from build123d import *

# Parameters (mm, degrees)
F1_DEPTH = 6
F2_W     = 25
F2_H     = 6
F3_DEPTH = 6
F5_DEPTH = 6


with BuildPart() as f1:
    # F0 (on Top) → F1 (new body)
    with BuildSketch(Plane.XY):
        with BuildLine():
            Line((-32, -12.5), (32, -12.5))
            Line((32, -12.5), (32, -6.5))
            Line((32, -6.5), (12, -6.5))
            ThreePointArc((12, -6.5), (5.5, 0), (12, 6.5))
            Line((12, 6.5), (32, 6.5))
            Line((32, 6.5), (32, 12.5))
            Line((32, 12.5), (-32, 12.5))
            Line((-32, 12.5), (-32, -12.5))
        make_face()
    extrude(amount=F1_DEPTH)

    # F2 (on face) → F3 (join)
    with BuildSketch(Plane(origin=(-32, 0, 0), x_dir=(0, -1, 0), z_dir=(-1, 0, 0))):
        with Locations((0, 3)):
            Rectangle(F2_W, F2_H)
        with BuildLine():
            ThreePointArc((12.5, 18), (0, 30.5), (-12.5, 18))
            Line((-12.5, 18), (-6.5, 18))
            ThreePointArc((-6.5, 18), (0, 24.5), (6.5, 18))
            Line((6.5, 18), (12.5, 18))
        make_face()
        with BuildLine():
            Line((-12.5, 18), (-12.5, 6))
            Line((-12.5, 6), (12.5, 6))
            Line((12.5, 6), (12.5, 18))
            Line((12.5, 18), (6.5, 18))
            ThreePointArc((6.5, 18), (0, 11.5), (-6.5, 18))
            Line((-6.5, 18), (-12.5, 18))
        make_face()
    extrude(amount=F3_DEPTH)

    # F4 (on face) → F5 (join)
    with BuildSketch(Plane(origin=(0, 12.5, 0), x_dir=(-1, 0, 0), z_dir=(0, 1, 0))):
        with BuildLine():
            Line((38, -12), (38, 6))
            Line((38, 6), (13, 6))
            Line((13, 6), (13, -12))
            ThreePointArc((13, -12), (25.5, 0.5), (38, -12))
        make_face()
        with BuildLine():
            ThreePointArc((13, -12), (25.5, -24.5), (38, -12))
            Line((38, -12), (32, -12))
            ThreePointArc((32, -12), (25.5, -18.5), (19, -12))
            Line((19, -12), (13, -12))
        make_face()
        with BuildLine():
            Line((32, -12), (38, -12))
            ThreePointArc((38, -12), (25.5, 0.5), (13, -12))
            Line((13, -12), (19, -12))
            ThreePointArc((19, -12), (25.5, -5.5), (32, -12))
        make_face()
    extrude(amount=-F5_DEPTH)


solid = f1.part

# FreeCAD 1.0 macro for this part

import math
import FreeCAD as App
import Part
import Sketcher
from FreeCAD import Vector

doc = App.newDocument("Part")
body = doc.addObject("PartDesign::Body", "Body")

# Sketch on XY plane
sketch1 = body.newObject("Sketcher::SketchObject", "Sketch")
sketch1.AttachmentSupport = (doc.getObject("XY_Plane"), [""])
sketch1.MapMode = "FlatFace"
sketch1.addGeometry(Part.LineSegment(Vector(-32, -12, 0), Vector(32, -12, 0)), False)
sketch1.addGeometry(Part.LineSegment(Vector(32, -12, 0), Vector(32, -6, 0)), False)
sketch1.addGeometry(Part.LineSegment(Vector(32, -6, 0), Vector(12, -6, 0)), False)
sketch1.addGeometry(Part.ArcOfCircle(Part.Circle(Vector(12, 0, 0), Vector(0, 0, 1), 6), math.radians(90), math.radians(270)), False)
sketch1.addGeometry(Part.LineSegment(Vector(12, 6, 0), Vector(32, 6, 0)), False)
sketch1.addGeometry(Part.LineSegment(Vector(32, 6, 0), Vector(32, 12, 0)), False)
sketch1.addGeometry(Part.LineSegment(Vector(32, 12, 0), Vector(-32, 12, 0)), False)
sketch1.addGeometry(Part.LineSegment(Vector(-32, 12, 0), Vector(-32, -12, 0)), False)
sketch1.addConstraint(Sketcher.Constraint("Coincident", 0, 2, 1, 1))
sketch1.addConstraint(Sketcher.Constraint("Coincident", 1, 2, 2, 1))
sketch1.addConstraint(Sketcher.Constraint("Tangent", 2, 2, 3, 2))
sketch1.addConstraint(Sketcher.Constraint("Tangent", 3, 1, 4, 1))
sketch1.addConstraint(Sketcher.Constraint("Coincident", 4, 2, 5, 1))
sketch1.addConstraint(Sketcher.Constraint("Coincident", 5, 2, 6, 1))
sketch1.addConstraint(Sketcher.Constraint("Coincident", 6, 2, 7, 1))
sketch1.addConstraint(Sketcher.Constraint("Coincident", 7, 2, 0, 1))
sketch1.addConstraint(Sketcher.Constraint("Horizontal", 0))
sketch1.addConstraint(Sketcher.Constraint("Vertical", 1))
sketch1.addConstraint(Sketcher.Constraint("Horizontal", 2))
sketch1.addConstraint(Sketcher.Constraint("Horizontal", 4))
sketch1.addConstraint(Sketcher.Constraint("Vertical", 5))
sketch1.addConstraint(Sketcher.Constraint("Horizontal", 6))
sketch1.addConstraint(Sketcher.Constraint("Vertical", 7))
sketch1.addConstraint(Sketcher.Constraint("Symmetric", 0, 2, 6, 2, -1, 1))
sketch1.addConstraint(Sketcher.Constraint("Symmetric", 1, 2, 4, 2, -1))
sketch1.addConstraint(Sketcher.Constraint("Radius", 3, 6.5))
sketch1.addConstraint(Sketcher.Constraint("DistanceX", 0, 1, 0, 2, 64.0))
sketch1.addConstraint(Sketcher.Constraint("DistanceX", 2, 2, 2, 1, 20.0))
sketch1.addConstraint(Sketcher.Constraint("DistanceY", 1, 1, 1, 2, 6.0))
pad1 = body.newObject("PartDesign::Pad", "Pad")
pad1.Profile = sketch1
pad1.Length = 6

# Sketch on YZ plane
sketch2 = body.newObject("Sketcher::SketchObject", "Sketch001")
sketch2.AttachmentSupport = (doc.getObject("YZ_Plane"), [""])
sketch2.MapMode = "FlatFace"
sketch2.AttachmentOffset = App.Placement(Vector(0, 0, -32), App.Rotation())
sketch2.addGeometry(Part.LineSegment(Vector(12, 0, 0), Vector(-12, 0, 0)), False)
sketch2.addGeometry(Part.LineSegment(Vector(-12, 0, 0), Vector(-12, 18, 0)), False)
sketch2.addGeometry(Part.ArcOfCircle(Part.Circle(Vector(0, 18, 0), Vector(0, 0, 1), 12), math.radians(0), math.radians(180)), False)
sketch2.addGeometry(Part.LineSegment(Vector(12, 18, 0), Vector(12, 0, 0)), False)
sketch2.addGeometry(Part.Circle(Vector(0, 18, 0), Vector(0, 0, 1), 6), False)
sketch2.addConstraint(Sketcher.Constraint("Coincident", 0, 2, 1, 1))
sketch2.addConstraint(Sketcher.Constraint("Tangent", 1, 2, 2, 2))
sketch2.addConstraint(Sketcher.Constraint("Tangent", 2, 1, 3, 1))
sketch2.addConstraint(Sketcher.Constraint("Coincident", 3, 2, 0, 1))
sketch2.addConstraint(Sketcher.Constraint("Horizontal", 0))
sketch2.addConstraint(Sketcher.Constraint("Vertical", 1))
sketch2.addConstraint(Sketcher.Constraint("Vertical", 3))
sketch2.addConstraint(Sketcher.Constraint("Coincident", 4, 3, 2, 3))
sketch2.addConstraint(Sketcher.Constraint("Symmetric", 0, 2, 3, 2, -1, 1))
sketch2.addConstraint(Sketcher.Constraint("Diameter", 4, 13.0))
sketch2.addConstraint(Sketcher.Constraint("Radius", 2, 12.5))
sketch2.addConstraint(Sketcher.Constraint("DistanceY", 1, 1, 1, 2, 18.0))
pad2 = body.newObject("PartDesign::Pad", "Pad001")
pad2.Profile = sketch2
pad2.Length = 6
pad2.Reversed = True

# Sketch on XZ plane
sketch3 = body.newObject("Sketcher::SketchObject", "Sketch002")
sketch3.AttachmentSupport = (doc.getObject("XZ_Plane"), [""])
sketch3.MapMode = "FlatFace"
sketch3.AttachmentOffset = App.Placement(Vector(0, 0, -12.5), App.Rotation())
sketch3.addGeometry(Part.LineSegment(Vector(-38, -12, 0), Vector(-38, 6, 0)), False)
sketch3.addGeometry(Part.LineSegment(Vector(-38, 6, 0), Vector(-13, 6, 0)), False)
sketch3.addGeometry(Part.LineSegment(Vector(-13, 6, 0), Vector(-13, -12, 0)), False)
sketch3.addGeometry(Part.ArcOfCircle(Part.Circle(Vector(-25.5, -12, 0), Vector(0, 0, 1), 12.5), math.radians(180), math.radians(360)), False)
sketch3.addGeometry(Part.Circle(Vector(-25.5, -12, 0), Vector(0, 0, 1), 6.5), False)
sketch3.addConstraint(Sketcher.Constraint("Coincident", 0, 2, 1, 1))
sketch3.addConstraint(Sketcher.Constraint("Coincident", 1, 2, 2, 1))
sketch3.addConstraint(Sketcher.Constraint("Tangent", 2, 2, 3, 2))
sketch3.addConstraint(Sketcher.Constraint("Tangent", 3, 1, 0, 1))
sketch3.addConstraint(Sketcher.Constraint("Vertical", 0))
sketch3.addConstraint(Sketcher.Constraint("Horizontal", 1))
sketch3.addConstraint(Sketcher.Constraint("Vertical", 2))
sketch3.addConstraint(Sketcher.Constraint("Coincident", 4, 3, 3, 3))
sketch3.addConstraint(Sketcher.Constraint("Diameter", 4, 13.0))
sketch3.addConstraint(Sketcher.Constraint("Radius", 3, 12.5))
sketch3.addConstraint(Sketcher.Constraint("DistanceY", 0, 1, 0, 2, 18.0))
sketch3.addConstraint(Sketcher.Constraint("DistanceY", 3, 3, -1, 1, 12.0))
sketch3.addConstraint(Sketcher.Constraint("DistanceX", 0, 2, -1, 1, 38.0))
pad3 = body.newObject("PartDesign::Pad", "Pad002")
pad3.Profile = sketch3
pad3.Length = 6

doc.recompute()
